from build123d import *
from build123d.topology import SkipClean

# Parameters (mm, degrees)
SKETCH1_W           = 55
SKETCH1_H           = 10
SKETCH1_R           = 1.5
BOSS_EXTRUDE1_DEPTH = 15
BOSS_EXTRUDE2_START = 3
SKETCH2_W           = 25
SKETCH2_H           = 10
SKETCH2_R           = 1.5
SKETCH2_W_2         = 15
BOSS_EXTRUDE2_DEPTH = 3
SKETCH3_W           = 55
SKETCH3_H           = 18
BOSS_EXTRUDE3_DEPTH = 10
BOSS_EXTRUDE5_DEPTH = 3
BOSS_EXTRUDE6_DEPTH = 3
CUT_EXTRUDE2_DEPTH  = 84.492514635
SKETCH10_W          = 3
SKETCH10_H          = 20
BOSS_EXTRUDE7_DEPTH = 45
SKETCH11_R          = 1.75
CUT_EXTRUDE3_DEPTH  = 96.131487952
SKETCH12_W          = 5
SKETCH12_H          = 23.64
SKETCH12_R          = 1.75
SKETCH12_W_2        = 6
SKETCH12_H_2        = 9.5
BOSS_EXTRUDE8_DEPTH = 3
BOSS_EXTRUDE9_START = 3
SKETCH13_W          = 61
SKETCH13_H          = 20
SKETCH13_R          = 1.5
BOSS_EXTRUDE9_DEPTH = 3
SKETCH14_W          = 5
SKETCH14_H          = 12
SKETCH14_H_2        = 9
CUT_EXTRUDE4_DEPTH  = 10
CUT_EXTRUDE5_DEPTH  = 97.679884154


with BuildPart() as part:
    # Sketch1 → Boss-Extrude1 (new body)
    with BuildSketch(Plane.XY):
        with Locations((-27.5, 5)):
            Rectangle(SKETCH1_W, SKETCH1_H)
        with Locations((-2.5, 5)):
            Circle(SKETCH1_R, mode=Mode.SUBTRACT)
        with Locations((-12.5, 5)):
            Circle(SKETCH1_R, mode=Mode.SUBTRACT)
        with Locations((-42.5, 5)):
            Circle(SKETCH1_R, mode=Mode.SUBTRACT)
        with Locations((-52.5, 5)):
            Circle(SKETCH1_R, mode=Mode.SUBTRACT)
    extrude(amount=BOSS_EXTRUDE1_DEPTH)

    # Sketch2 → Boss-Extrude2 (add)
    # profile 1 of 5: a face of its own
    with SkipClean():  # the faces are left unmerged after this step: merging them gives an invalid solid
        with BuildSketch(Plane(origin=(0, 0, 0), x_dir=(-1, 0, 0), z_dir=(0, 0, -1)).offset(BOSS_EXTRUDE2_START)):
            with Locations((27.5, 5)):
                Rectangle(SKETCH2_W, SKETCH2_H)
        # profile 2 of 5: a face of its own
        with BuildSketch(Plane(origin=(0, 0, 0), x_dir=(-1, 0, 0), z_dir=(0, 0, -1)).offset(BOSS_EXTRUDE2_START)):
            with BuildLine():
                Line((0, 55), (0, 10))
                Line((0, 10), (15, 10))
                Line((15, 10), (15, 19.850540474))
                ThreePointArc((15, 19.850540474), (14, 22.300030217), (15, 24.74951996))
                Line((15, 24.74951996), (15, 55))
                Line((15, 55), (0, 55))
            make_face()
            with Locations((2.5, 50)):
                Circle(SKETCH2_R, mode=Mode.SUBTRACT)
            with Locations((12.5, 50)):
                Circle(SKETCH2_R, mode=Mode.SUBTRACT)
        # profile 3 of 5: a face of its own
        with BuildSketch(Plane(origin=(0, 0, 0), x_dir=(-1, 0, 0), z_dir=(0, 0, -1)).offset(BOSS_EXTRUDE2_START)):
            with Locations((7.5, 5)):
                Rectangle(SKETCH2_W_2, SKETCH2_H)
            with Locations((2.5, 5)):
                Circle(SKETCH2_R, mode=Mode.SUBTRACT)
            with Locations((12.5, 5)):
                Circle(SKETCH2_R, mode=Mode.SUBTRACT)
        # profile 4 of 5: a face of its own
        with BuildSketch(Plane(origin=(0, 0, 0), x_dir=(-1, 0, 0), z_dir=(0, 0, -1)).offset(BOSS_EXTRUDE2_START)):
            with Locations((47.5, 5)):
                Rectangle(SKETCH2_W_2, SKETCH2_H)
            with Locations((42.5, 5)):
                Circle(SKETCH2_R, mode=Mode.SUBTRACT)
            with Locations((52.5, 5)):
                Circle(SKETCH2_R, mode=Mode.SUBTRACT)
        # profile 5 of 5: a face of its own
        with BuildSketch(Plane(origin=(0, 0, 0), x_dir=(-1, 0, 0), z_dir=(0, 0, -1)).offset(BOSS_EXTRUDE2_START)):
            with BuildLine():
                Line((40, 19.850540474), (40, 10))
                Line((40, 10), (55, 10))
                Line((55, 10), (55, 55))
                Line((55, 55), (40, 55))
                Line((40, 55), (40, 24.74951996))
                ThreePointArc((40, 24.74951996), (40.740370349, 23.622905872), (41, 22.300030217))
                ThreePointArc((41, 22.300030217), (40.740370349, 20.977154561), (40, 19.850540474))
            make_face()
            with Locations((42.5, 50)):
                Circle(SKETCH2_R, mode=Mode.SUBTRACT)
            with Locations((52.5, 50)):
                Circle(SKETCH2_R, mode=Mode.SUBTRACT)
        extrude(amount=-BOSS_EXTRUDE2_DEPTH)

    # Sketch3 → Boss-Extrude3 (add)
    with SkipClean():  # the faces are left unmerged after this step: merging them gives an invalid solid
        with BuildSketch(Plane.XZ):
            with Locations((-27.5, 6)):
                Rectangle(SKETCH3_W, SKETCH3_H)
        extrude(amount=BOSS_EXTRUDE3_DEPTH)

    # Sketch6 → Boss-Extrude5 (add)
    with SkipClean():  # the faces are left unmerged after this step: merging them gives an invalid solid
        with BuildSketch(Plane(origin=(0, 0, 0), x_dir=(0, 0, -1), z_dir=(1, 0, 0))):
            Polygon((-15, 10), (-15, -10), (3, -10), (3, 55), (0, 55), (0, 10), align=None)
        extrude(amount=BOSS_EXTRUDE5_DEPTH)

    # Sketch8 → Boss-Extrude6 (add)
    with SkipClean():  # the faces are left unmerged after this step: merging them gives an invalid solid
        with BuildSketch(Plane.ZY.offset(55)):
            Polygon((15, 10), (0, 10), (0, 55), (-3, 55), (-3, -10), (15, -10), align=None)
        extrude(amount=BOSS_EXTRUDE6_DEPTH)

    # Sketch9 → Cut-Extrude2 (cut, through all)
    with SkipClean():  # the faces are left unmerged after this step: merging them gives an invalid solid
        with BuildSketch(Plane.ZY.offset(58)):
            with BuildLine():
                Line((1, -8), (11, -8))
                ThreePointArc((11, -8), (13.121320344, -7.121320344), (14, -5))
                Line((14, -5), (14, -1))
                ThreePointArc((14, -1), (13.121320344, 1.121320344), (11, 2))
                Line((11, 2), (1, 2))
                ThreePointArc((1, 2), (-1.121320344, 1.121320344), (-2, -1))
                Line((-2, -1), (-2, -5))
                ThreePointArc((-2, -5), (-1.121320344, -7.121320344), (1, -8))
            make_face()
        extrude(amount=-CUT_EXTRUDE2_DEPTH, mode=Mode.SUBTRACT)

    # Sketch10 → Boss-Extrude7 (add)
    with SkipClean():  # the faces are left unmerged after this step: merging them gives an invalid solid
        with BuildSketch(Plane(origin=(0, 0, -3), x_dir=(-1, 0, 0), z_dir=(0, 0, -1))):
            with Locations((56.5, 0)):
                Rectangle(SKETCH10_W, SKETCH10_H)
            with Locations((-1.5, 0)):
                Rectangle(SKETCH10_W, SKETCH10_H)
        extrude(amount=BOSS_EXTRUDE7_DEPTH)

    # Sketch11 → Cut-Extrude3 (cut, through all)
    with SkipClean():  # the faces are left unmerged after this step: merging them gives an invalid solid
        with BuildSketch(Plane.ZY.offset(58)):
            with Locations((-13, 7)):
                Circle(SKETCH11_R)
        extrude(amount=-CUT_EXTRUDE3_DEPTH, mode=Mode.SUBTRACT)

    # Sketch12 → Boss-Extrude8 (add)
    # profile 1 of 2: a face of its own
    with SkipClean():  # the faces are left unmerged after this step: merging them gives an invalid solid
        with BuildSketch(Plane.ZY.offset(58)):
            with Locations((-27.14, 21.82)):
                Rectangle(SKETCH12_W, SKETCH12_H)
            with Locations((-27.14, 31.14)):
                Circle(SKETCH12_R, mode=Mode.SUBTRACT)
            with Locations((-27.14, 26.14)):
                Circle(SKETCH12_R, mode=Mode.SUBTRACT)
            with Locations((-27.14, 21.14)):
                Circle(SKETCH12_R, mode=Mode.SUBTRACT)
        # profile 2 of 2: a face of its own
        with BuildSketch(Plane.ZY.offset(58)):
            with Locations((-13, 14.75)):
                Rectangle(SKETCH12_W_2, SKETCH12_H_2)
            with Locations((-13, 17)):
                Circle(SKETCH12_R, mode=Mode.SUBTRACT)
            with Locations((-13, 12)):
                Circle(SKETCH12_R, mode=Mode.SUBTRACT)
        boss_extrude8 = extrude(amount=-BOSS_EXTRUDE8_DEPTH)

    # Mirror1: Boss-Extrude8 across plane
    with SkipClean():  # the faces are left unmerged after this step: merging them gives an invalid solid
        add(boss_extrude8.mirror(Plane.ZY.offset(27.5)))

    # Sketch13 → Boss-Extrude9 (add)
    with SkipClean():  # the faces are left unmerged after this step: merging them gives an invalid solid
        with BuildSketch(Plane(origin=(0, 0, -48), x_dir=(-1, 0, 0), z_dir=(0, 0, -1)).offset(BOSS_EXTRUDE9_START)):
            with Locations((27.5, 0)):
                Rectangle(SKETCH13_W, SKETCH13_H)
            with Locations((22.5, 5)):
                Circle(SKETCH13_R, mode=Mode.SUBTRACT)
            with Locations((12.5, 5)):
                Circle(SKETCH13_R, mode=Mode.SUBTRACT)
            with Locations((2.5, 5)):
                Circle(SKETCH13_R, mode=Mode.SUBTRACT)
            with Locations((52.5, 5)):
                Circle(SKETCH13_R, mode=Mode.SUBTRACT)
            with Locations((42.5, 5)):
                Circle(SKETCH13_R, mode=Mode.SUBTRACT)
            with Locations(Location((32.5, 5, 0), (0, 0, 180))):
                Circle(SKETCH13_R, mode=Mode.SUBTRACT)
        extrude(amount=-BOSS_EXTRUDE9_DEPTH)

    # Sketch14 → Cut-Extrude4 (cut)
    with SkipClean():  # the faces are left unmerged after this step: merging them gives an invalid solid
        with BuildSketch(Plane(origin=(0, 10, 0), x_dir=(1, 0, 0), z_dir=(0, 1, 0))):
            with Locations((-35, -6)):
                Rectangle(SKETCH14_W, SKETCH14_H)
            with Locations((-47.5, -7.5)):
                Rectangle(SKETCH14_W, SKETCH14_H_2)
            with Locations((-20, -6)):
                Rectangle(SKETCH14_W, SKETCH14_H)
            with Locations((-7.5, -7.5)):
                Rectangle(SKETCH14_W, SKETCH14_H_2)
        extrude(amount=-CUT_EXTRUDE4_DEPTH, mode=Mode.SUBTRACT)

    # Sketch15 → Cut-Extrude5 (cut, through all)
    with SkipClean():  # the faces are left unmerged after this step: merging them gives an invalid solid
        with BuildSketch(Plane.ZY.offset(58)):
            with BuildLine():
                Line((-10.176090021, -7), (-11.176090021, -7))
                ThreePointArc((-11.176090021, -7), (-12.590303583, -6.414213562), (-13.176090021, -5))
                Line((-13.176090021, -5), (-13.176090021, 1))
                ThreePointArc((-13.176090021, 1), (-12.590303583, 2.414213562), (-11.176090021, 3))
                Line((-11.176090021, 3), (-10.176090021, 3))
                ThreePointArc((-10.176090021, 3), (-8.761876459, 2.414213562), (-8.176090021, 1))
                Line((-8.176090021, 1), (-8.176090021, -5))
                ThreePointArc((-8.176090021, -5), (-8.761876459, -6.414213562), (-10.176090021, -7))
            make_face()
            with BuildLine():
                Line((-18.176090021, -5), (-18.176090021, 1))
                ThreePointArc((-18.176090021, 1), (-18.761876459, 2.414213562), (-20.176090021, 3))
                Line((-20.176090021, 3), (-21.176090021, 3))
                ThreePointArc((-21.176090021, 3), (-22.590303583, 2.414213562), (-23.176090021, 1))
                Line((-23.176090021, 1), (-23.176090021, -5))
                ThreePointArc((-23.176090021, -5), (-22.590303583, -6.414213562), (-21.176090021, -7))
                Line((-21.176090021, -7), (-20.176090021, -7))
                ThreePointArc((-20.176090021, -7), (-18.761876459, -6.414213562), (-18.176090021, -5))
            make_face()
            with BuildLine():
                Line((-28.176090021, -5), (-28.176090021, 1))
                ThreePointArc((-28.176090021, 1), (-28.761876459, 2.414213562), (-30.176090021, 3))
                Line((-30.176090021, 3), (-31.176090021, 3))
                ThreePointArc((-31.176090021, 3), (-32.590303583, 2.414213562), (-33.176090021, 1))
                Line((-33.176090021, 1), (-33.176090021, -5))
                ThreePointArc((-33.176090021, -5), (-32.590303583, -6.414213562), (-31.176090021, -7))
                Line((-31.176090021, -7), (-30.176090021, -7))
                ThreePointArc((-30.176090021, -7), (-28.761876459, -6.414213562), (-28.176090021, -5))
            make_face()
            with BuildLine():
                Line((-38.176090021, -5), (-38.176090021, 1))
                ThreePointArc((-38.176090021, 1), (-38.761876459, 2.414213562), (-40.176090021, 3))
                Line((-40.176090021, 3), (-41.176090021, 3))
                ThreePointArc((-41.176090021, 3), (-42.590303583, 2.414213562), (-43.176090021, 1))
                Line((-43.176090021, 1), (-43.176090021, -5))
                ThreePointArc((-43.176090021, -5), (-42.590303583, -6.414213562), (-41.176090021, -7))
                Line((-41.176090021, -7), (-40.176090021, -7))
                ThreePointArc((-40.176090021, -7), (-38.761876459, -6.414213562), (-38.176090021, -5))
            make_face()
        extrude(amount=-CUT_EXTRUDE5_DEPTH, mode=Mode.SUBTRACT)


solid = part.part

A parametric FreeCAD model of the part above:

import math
import FreeCAD as App
import Part
import Sketcher

V = App.Vector

doc = App.newDocument("Part")
body = doc.addObject("PartDesign::Body", "Body")

# Sketch on XY plane
sketch1 = doc.addObject("Sketcher::SketchObject", "Sketch")
body.addObject(sketch1)
sketch1.AttachmentSupport = (doc.XY_Plane, [""])
sketch1.MapMode = "FlatFace"
sketch1.addGeometry(Part.LineSegment(V(-55, 10, 0), V(-55, 0, 0)), False)
sketch1.addGeometry(Part.LineSegment(V(-55, 0, 0), V(0, 0, 0)), False)
sketch1.addGeometry(Part.LineSegment(V(0, 0, 0), V(0, 10, 0)), False)
sketch1.addGeometry(Part.LineSegment(V(0, 10, 0), V(-55, 10, 0)), False)
sketch1.addGeometry(Part.Circle(V(-52.5, 5, 0), V(0, 0, 1), 1.5), False)
sketch1.addGeometry(Part.Circle(V(-42.5, 5, 0), V(0, 0, 1), 1.5), False)
sketch1.addGeometry(Part.Circle(V(-12.5, 5, 0), V(0, 0, 1), 1.5), False)
sketch1.addGeometry(Part.Circle(V(-2.5, 5, 0), V(0, 0, 1), 1.5), False)
sketch1.addConstraint(Sketcher.Constraint("Coincident", 0, 2, 1, 1))
sketch1.addConstraint(Sketcher.Constraint("Coincident", 1, 2, 2, 1))
sketch1.addConstraint(Sketcher.Constraint("Coincident", 2, 2, 3, 1))
sketch1.addConstraint(Sketcher.Constraint("Coincident", 3, 2, 0, 1))
sketch1.addConstraint(Sketcher.Constraint("Vertical", 0))
sketch1.addConstraint(Sketcher.Constraint("Horizontal", 1))
sketch1.addConstraint(Sketcher.Constraint("Vertical", 2))
sketch1.addConstraint(Sketcher.Constraint("Horizontal", 3))
sketch1.addConstraint(Sketcher.Constraint("Coincident", 1, 2, -1, 1))
sketch1.addConstraint(Sketcher.Constraint("Equal", 4, 5))
sketch1.addConstraint(Sketcher.Constraint("Equal", 5, 6))
sketch1.addConstraint(Sketcher.Constraint("Equal", 6, 7))
sketch1.addConstraint(Sketcher.Constraint("Horizontal", 4, 3, 5, 3))
sketch1.addConstraint(Sketcher.Constraint("Horizontal", 5, 3, 6, 3))
sketch1.addConstraint(Sketcher.Constraint("Horizontal", 6, 3, 7, 3))
sketch1.addConstraint(Sketcher.Constraint("Diameter", 4, 3.0))
sketch1.addConstraint(Sketcher.Constraint("DistanceX", 1, 1, 1, 2, 55.0))
sketch1.addConstraint(Sketcher.Constraint("DistanceY", 0, 2, 0, 1, 10.0))
sketch1.addConstraint(Sketcher.Constraint("DistanceY", -1, 1, 4, 3, 5.0))
sketch1.addConstraint(Sketcher.Constraint("DistanceX", 4, 3, 5, 3, 10.0))
sketch1.addConstraint(Sketcher.Constraint("DistanceX", 5, 3, 6, 3, 30.0))
sketch1.addConstraint(Sketcher.Constraint("DistanceX", 6, 3, 7, 3, 10.0))
sketch1.addConstraint(Sketcher.Constraint("DistanceX", 4, 3, -1, 1, 52.5))
pad1 = doc.addObject("PartDesign::Pad", "Pad")
body.addObject(pad1)
pad1.Profile = sketch1
pad1.Length = 15

# Sketch on XY plane
sketch2 = doc.addObject("Sketcher::SketchObject", "Sketch001")
body.addObject(sketch2)
sketch2.AttachmentSupport = (doc.XY_Plane, [""])
sketch2.MapMode = "FlatFace"
sketch2.AttachmentOffset = App.Placement(V(0, 0, -3), App.Rotation())
sketch2.addGeometry(Part.LineSegment(V(-55, 0, 0), V(-55, 55, 0)), False)
sketch2.addGeometry(Part.LineSegment(V(-55, 55, 0), V(-40, 55, 0)), False)
sketch2.addGeometry(Part.LineSegment(V(-40, 55, 0), V(-40, 24.7, 0)), False)
sketch2.addGeometry(Part.ArcOfCircle(Part.Circle(V(-37.5, 22.3, 0), V(0, 0, 1), 3.5), math.radians(136), math.radians(180)), False)
sketch2.addGeometry(Part.ArcOfCircle(Part.Circle(V(-37.5, 22.3, 0), V(0, 0, 1), 3.5), math.radians(180), math.radians(224)), False)
sketch2.addGeometry(Part.LineSegment(V(-40, 19.9, 0), V(-40, 10, 0)), False)
sketch2.addGeometry(Part.LineSegment(V(-40, 10, 0), V(-15, 10, 0)), False)
sketch2.addGeometry(Part.LineSegment(V(-15, 10, 0), V(-15, 19.9, 0)), False)
sketch2.addGeometry(Part.ArcOfCircle(Part.Circle(V(-17.5, 22.3, 0), V(0, 0, 1), 3.5), math.radians(-44), math.radians(44)), False)
sketch2.addGeometry(Part.LineSegment(V(-15, 24.7, 0), V(-15, 55, 0)), False)
sketch2.addGeometry(Part.LineSegment(V(-15, 55, 0), V(0, 55, 0)), False)
sketch2.addGeometry(Part.LineSegment(V(0, 55, 0), V(0, 0, 0)), False)
sketch2.addGeometry(Part.LineSegment(V(0, 0, 0), V(-55, 0, 0)), False)
sketch2.addGeometry(Part.Circle(V(-12.5, 5, 0), V(0, 0, 1), 1.5), False)
sketch2.addGeometry(Part.Circle(V(-2.5, 5, 0), V(0, 0, 1), 1.5), False)
sketch2.addGeometry(Part.Circle(V(-52.5, 5, 0), V(0, 0, 1), 1.5), False)
sketch2.addGeometry(Part.Circle(V(-42.5, 5, 0), V(0, 0, 1), 1.5), False)
sketch2.addGeometry(Part.Circle(V(-12.5, 50, 0), V(0, 0, 1), 1.5), False)
sketch2.addGeometry(Part.Circle(V(-2.5, 50, 0), V(0, 0, 1), 1.5), False)
sketch2.addGeometry(Part.Circle(V(-52.5, 50, 0), V(0, 0, 1), 1.5), False)
sketch2.addGeometry(Part.Circle(V(-42.5, 50, 0), V(0, 0, 1), 1.5), False)
sketch2.addConstraint(Sketcher.Constraint("Coincident", 0, 2, 1, 1))
sketch2.addConstraint(Sketcher.Constraint("Coincident", 1, 2, 2, 1))
sketch2.addConstraint(Sketcher.Constraint("Coincident", 2, 2, 3, 1))
sketch2.addConstraint(Sketcher.Constraint("Tangent", 3, 2, 4, 1))
sketch2.addConstraint(Sketcher.Constraint("Coincident", 4, 2, 5, 1))
sketch2.addConstraint(Sketcher.Constraint("Coincident", 5, 2, 6, 1))
sketch2.addConstraint(Sketcher.Constraint("Coincident", 6, 2, 7, 1))
sketch2.addConstraint(Sketcher.Constraint("Coincident", 7, 2, 8, 1))
sketch2.addConstraint(Sketcher.Constraint("Coincident", 8, 2, 9, 1))
sketch2.addConstraint(Sketcher.Constraint("Coincident", 9, 2, 10, 1))
sketch2.addConstraint(Sketcher.Constraint("Coincident", 10, 2, 11, 1))
sketch2.addConstraint(Sketcher.Constraint("Coincident", 11, 2, 12, 1))
sketch2.addConstraint(Sketcher.Constraint("Coincident", 12, 2, 0, 1))
sketch2.addConstraint(Sketcher.Constraint("Vertical", 0))
sketch2.addConstraint(Sketcher.Constraint("Horizontal", 1))
sketch2.addConstraint(Sketcher.Constraint("Vertical", 2))
sketch2.addConstraint(Sketcher.Constraint("Vertical", 5))
sketch2.addConstraint(Sketcher.Constraint("Horizontal", 6))
sketch2.addConstraint(Sketcher.Constraint("Vertical", 7))
sketch2.addConstraint(Sketcher.Constraint("Vertical", 9))
sketch2.addConstraint(Sketcher.Constraint("Horizontal", 10))
sketch2.addConstraint(Sketcher.Constraint("Vertical", 11))
sketch2.addConstraint(Sketcher.Constraint("Horizontal", 12))
sketch2.addConstraint(Sketcher.Constraint("Coincident", 11, 2, -1, 1))
sketch2.addConstraint(Sketcher.Constraint("Equal", 3, 4))
sketch2.addConstraint(Sketcher.Constraint("Equal", 4, 8))
sketch2.addConstraint(Sketcher.Constraint("Equal", 13, 14))
sketch2.addConstraint(Sketcher.Constraint("Equal", 14, 15))
sketch2.addConstraint(Sketcher.Constraint("Equal", 15, 16))
sketch2.addConstraint(Sketcher.Constraint("Equal", 16, 17))
sketch2.addConstraint(Sketcher.Constraint("Equal", 17, 18))
sketch2.addConstraint(Sketcher.Constraint("Equal", 18, 19))
sketch2.addConstraint(Sketcher.Constraint("Equal", 19, 20))
sketch2.addConstraint(Sketcher.Constraint("Horizontal", 4, 3, 8, 3))
sketch2.addConstraint(Sketcher.Constraint("Horizontal", 13, 3, 14, 3))
sketch2.addConstraint(Sketcher.Constraint("Horizontal", 14, 3, 15, 3))
sketch2.addConstraint(Sketcher.Constraint("Horizontal", 15, 3, 16, 3))
sketch2.addConstraint(Sketcher.Constraint("Horizontal", 17, 3, 18, 3))
sketch2.addConstraint(Sketcher.Constraint("Horizontal", 18, 3, 19, 3))
sketch2.addConstraint(Sketcher.Constraint("Horizontal", 19, 3, 20, 3))
sketch2.addConstraint(Sketcher.Constraint("Horizontal", 8, 3, 3, 2))
sketch2.addConstraint(Sketcher.Constraint("Horizontal", 4, 2, 7, 2))
sketch2.addConstraint(Sketcher.Constraint("Horizontal", 2, 2, 8, 2))
sketch2.addConstraint(Sketcher.Constraint("Horizontal", 1, 2, 9, 2))
sketch2.addConstraint(Sketcher.Constraint("Vertical", 13, 3, 17, 3))
sketch2.addConstraint(Sketcher.Constraint("Vertical", 14, 3, 18, 3))
sketch2.addConstraint(Sketcher.Constraint("Vertical", 15, 3, 19, 3))
sketch2.addConstraint(Sketcher.Constraint("Vertical", 16, 3, 20, 3))
sketch2.addConstraint(Sketcher.Constraint("Vertical", 2, 2, 4, 2))
sketch2.addConstraint(Sketcher.Constraint("Equal", 1, 10))
sketch2.addConstraint(Sketcher.Constraint("Equal", 12, 0))
sketch2.addConstraint(Sketcher.Constraint("Diameter", 13, 3.0))
sketch2.addConstraint(Sketcher.Constraint("Radius", 3, 3.5))
sketch2.addConstraint(Sketcher.Constraint("DistanceX", 1, 1, 1, 2, 15.0))
sketch2.addConstraint(Sketcher.Constraint("DistanceX", 6, 1, 6, 2, 25.0))
sketch2.addConstraint(Sketcher.Constraint("DistanceY", -1, 1, 13, 3, 5.0))
sketch2.addConstraint(Sketcher.Constraint("DistanceY", -1, 1, 17, 3, 50.0))
sketch2.addConstraint(Sketcher.Constraint("DistanceX", 3, 2, -1, 1, 41.0))
sketch2.addConstraint(Sketcher.Constraint("DistanceY", -1, 1, 5, 2, 10.0))
sketch2.addConstraint(Sketcher.Constraint("DistanceX", 8, 3, 13, 3, 5.0))
sketch2.addConstraint(Sketcher.Constraint("DistanceX", 13, 3, 14, 3, 10.0))
sketch2.addConstraint(Sketcher.Constraint("DistanceX", 15, 3, 4, 3, 15.0))
sketch2.addConstraint(Sketcher.Constraint("DistanceX", 15, 3, 16, 3, 10.0))
sketch2.addConstraint(Sketcher.Constraint("DistanceY", 2, 2, 2, 1, 30.25048))
pad2 = doc.addObject("PartDesign::Pad", "Pad001")
body.addObject(pad2)
pad2.Profile = sketch2
pad2.Length = 3

# Sketch on XZ plane
sketch3 = doc.addObject("Sketcher::SketchObject", "Sketch002")
body.addObject(sketch3)
sketch3.AttachmentSupport = (doc.XZ_Plane, [""])
sketch3.MapMode = "FlatFace"
sketch3.addGeometry(Part.LineSegment(V(-55, 15, 0), V(-55, -3, 0)), False)
sketch3.addGeometry(Part.LineSegment(V(-55, -3, 0), V(0, -3, 0)), False)
sketch3.addGeometry(Part.LineSegment(V(0, -3, 0), V(0, 15, 0)), False)
sketch3.addGeometry(Part.LineSegment(V(0, 15, 0), V(-55, 15, 0)), False)
sketch3.addConstraint(Sketcher.Constraint("Coincident", 0, 2, 1, 1))
sketch3.addConstraint(Sketcher.Constraint("Coincident", 1, 2, 2, 1))
sketch3.addConstraint(Sketcher.Constraint("Coincident", 2, 2, 3, 1))
sketch3.addConstraint(Sketcher.Constraint("Coincident", 3, 2, 0, 1))
sketch3.addConstraint(Sketcher.Constraint("Vertical", 0))
sketch3.addConstraint(Sketcher.Constraint("Horizontal", 1))
sketch3.addConstraint(Sketcher.Constraint("Vertical", 2))
sketch3.addConstraint(Sketcher.Constraint("Horizontal", 3))
sketch3.addConstraint(Sketcher.Constraint("PointOnObject", 1, 2, -2))
sketch3.addConstraint(Sketcher.Constraint("DistanceX", 1, 1, 1, 2, 55.0))
sketch3.addConstraint(Sketcher.Constraint("DistanceY", 0, 2, 0, 1, 18.0))
sketch3.addConstraint(Sketcher.Constraint("DistanceY", 0, 2, -1, 1, 3.0))
pad3 = doc.addObject("PartDesign::Pad", "Pad002")
body.addObject(pad3)
pad3.Profile = sketch3
pad3.Length = 10

# Sketch on YZ plane
sketch4 = doc.addObject("Sketcher::SketchObject", "Sketch003")
body.addObject(sketch4)
sketch4.AttachmentSupport = (doc.YZ_Plane, [""])
sketch4.MapMode = "FlatFace"
sketch4.addGeometry(Part.LineSegment(V(10, 15, 0), V(-10, 15, 0)), False)
sketch4.addGeometry(Part.LineSegment(V(-10, 15, 0), V(-10, -3, 0)), False)
sketch4.addGeometry(Part.LineSegment(V(-10, -3, 0), V(55, -3, 0)), False)
sketch4.addGeometry(Part.LineSegment(V(55, -3, 0), V(55, 0, 0)), False)
sketch4.addGeometry(Part.LineSegment(V(55, 0, 0), V(10, 0, 0)), False)
sketch4.addGeometry(Part.LineSegment(V(10, 0, 0), V(10, 15, 0)), False)
sketch4.addConstraint(Sketcher.Constraint("Coincident", 0, 2, 1, 1))
sketch4.addConstraint(Sketcher.Constraint("Coincident", 1, 2, 2, 1))
sketch4.addConstraint(Sketcher.Constraint("Coincident", 2, 2, 3, 1))
sketch4.addConstraint(Sketcher.Constraint("Coincident", 3, 2, 4, 1))
sketch4.addConstraint(Sketcher.Constraint("Coincident", 4, 2, 5, 1))
sketch4.addConstraint(Sketcher.Constraint("Coincident", 5, 2, 0, 1))
sketch4.addConstraint(Sketcher.Constraint("Horizontal", 0))
sketch4.addConstraint(Sketcher.Constraint("Vertical", 1))
sketch4.addConstraint(Sketcher.Constraint("Horizontal", 2))
sketch4.addConstraint(Sketcher.Constraint("Vertical", 3))
sketch4.addConstraint(Sketcher.Constraint("Horizontal", 4))
sketch4.addConstraint(Sketcher.Constraint("Vertical", 5))
sketch4.addConstraint(Sketcher.Constraint("PointOnObject", 3, 2, -1))
sketch4.addConstraint(Sketcher.Constraint("DistanceX", 0, 2, 0, 1, 20.0))
sketch4.addConstraint(Sketcher.Constraint("DistanceX", 2, 1, 2, 2, 65.0))
sketch4.addConstraint(Sketcher.Constraint("DistanceY", 1, 2, 1, 1, 18.0))
sketch4.addConstraint(Sketcher.Constraint("DistanceY", 3, 1, 3, 2, 3.0))
sketch4.addConstraint(Sketcher.Constraint("DistanceX", 0, 2, -1, 1, 10.0))
pad4 = doc.addObject("PartDesign::Pad", "Pad003")
body.addObject(pad4)
pad4.Profile = sketch4
pad4.Length = 3

# Sketch on YZ plane
sketch5 = doc.addObject("Sketcher::SketchObject", "Sketch004")
body.addObject(sketch5)
sketch5.AttachmentSupport = (doc.YZ_Plane, [""])
sketch5.MapMode = "FlatFace"
sketch5.AttachmentOffset = App.Placement(V(0, 0, -55), App.Rotation())
sketch5.addGeometry(Part.LineSegment(V(10, 15, 0), V(10, 0, 0)), False)
sketch5.addGeometry(Part.LineSegment(V(10, 0, 0), V(55, 0, 0)), False)
sketch5.addGeometry(Part.LineSegment(V(55, 0, 0), V(55, -3, 0)), False)
sketch5.addGeometry(Part.LineSegment(V(55, -3, 0), V(-10, -3, 0)), False)
sketch5.addGeometry(Part.LineSegment(V(-10, -3, 0), V(-10, 15, 0)), False)
sketch5.addGeometry(Part.LineSegment(V(-10, 15, 0), V(10, 15, 0)), False)
sketch5.addConstraint(Sketcher.Constraint("Coincident", 0, 2, 1, 1))
sketch5.addConstraint(Sketcher.Constraint("Coincident", 1, 2, 2, 1))
sketch5.addConstraint(Sketcher.Constraint("Coincident", 2, 2, 3, 1))
sketch5.addConstraint(Sketcher.Constraint("Coincident", 3, 2, 4, 1))
sketch5.addConstraint(Sketcher.Constraint("Coincident", 4, 2, 5, 1))
sketch5.addConstraint(Sketcher.Constraint("Coincident", 5, 2, 0, 1))
sketch5.addConstraint(Sketcher.Constraint("Vertical", 0))
sketch5.addConstraint(Sketcher.Constraint("Horizontal", 1))
sketch5.addConstraint(Sketcher.Constraint("Vertical", 2))
sketch5.addConstraint(Sketcher.Constraint("Horizontal", 3))
sketch5.addConstraint(Sketcher.Constraint("Vertical", 4))
sketch5.addConstraint(Sketcher.Constraint("Horizontal", 5))
sketch5.addConstraint(Sketcher.Constraint("PointOnObject", 0, 2, -1))
sketch5.addConstraint(Sketcher.Constraint("DistanceX", 1, 1, 1, 2, 45.0))
sketch5.addConstraint(Sketcher.Constraint("DistanceX", 3, 2, 3, 1, 65.0))
sketch5.addConstraint(Sketcher.Constraint("DistanceY", 0, 2, 0, 1, 15.0))
sketch5.addConstraint(Sketcher.Constraint("DistanceY", 2, 2, 2, 1, 3.0))
sketch5.addConstraint(Sketcher.Constraint("DistanceX", -1, 1, 0, 2, 10.0))
pad5 = doc.addObject("PartDesign::Pad", "Pad004")
body.addObject(pad5)
pad5.Profile = sketch5
pad5.Length = 3
pad5.Reversed = True

# Sketch on YZ plane
sketch6 = doc.addObject("Sketcher::SketchObject", "Sketch005")
body.addObject(sketch6)
sketch6.AttachmentSupport = (doc.YZ_Plane, [""])
sketch6.MapMode = "FlatFace"
sketch6.AttachmentOffset = App.Placement(V(0, 0, -58), App.Rotation())
sketch6.addGeometry(Part.LineSegment(V(-8, 1, 0), V(-8, 11, 0)), False)
sketch6.addGeometry(Part.ArcOfCircle(Part.Circle(V(-5, 11, 0), V(0, 0, 1), 3), math.radians(90), math.radians(180)), False)
sketch6.addGeometry(Part.LineSegment(V(-5, 14, 0), V(-1, 14, 0)), False)
sketch6.addGeometry(Part.ArcOfCircle(Part.Circle(V(-1, 11, 0), V(0, 0, 1), 3), math.radians(0), math.radians(90)), False)
sketch6.addGeometry(Part.LineSegment(V(2, 11, 0), V(2, 1, 0)), False)
sketch6.addGeometry(Part.ArcOfCircle(Part.Circle(V(-1, 1, 0), V(0, 0, 1), 3), math.radians(-90), math.radians(0)), False)
sketch6.addGeometry(Part.LineSegment(V(-1, -2, 0), V(-5, -2, 0)), False)
sketch6.addGeometry(Part.ArcOfCircle(Part.Circle(V(-5, 1, 0), V(0, 0, 1), 3), math.radians(180), math.radians(270)), False)
sketch6.addConstraint(Sketcher.Constraint("Tangent", 0, 2, 1, 2))
sketch6.addConstraint(Sketcher.Constraint("Tangent", 1, 1, 2, 1))
sketch6.addConstraint(Sketcher.Constraint("Tangent", 2, 2, 3, 2))
sketch6.addConstraint(Sketcher.Constraint("Tangent", 3, 1, 4, 1))
sketch6.addConstraint(Sketcher.Constraint("Tangent", 4, 2, 5, 2))
sketch6.addConstraint(Sketcher.Constraint("Tangent", 5, 1, 6, 1))
sketch6.addConstraint(Sketcher.Constraint("Tangent", 6, 2, 7, 2))
sketch6.addConstraint(Sketcher.Constraint("Tangent", 7, 1, 0, 1))
sketch6.addConstraint(Sketcher.Constraint("Vertical", 0))
sketch6.addConstraint(Sketcher.Constraint("Horizontal", 2))
sketch6.addConstraint(Sketcher.Constraint("Vertical", 4))
sketch6.addConstraint(Sketcher.Constraint("Horizontal", 6))
sketch6.addConstraint(Sketcher.Constraint("Equal", 1, 3))
sketch6.addConstraint(Sketcher.Constraint("Equal", 3, 5))
sketch6.addConstraint(Sketcher.Constraint("Equal", 5, 7))
sketch6.addConstraint(Sketcher.Constraint("Radius", 1, 3.0))
sketch6.addConstraint(Sketcher.Constraint("DistanceX", 2, 1, 2, 2, 4.0))
sketch6.addConstraint(Sketcher.Constraint("DistanceY", 0, 1, 0, 2, 10.0))
sketch6.addConstraint(Sketcher.Constraint("DistanceX", 1, 3, -1, 1, 5.0))
sketch6.addConstraint(Sketcher.Constraint("DistanceY", -1, 1, 1, 3, 11.0))
pocket1 = doc.addObject("PartDesign::Pocket", "Pocket")
body.addObject(pocket1)
pocket1.Profile = sketch6
pocket1.Type = "ThroughAll"
pocket1.Reversed = True

# Sketch on XY plane
sketch7 = doc.addObject("Sketcher::SketchObject", "Sketch006")
body.addObject(sketch7)
sketch7.AttachmentSupport = (doc.XY_Plane, [""])
sketch7.MapMode = "FlatFace"
sketch7.AttachmentOffset = App.Placement(V(0, 0, -3), App.Rotation())
sketch7.addGeometry(Part.LineSegment(V(-55, 10, 0), V(-55, -10, 0)), False)
sketch7.addGeometry(Part.LineSegment(V(-55, -10, 0), V(-58, -10, 0)), False)
sketch7.addGeometry(Part.LineSegment(V(-58, -10, 0), V(-58, 10, 0)), False)
sketch7.addGeometry(Part.LineSegment(V(-58, 10, 0), V(-55, 10, 0)), False)
sketch7.addGeometry(Part.LineSegment(V(3, 10, 0), V(3, -10, 0)), False)
sketch7.addGeometry(Part.LineSegment(V(3, -10, 0), V(0, -10, 0)), False)
sketch7.addGeometry(Part.LineSegment(V(0, -10, 0), V(0, 10, 0)), False)
sketch7.addGeometry(Part.LineSegment(V(0, 10, 0), V(3, 10, 0)), False)
sketch7.addConstraint(Sketcher.Constraint("Coincident", 0, 2, 1, 1))
sketch7.addConstraint(Sketcher.Constraint("Coincident", 1, 2, 2, 1))
sketch7.addConstraint(Sketcher.Constraint("Coincident", 2, 2, 3, 1))
sketch7.addConstraint(Sketcher.Constraint("Coincident", 3, 2, 0, 1))
sketch7.addConstraint(Sketcher.Constraint("Coincident", 4, 2, 5, 1))
sketch7.addConstraint(Sketcher.Constraint("Coincident", 5, 2, 6, 1))
sketch7.addConstraint(Sketcher.Constraint("Coincident", 6, 2, 7, 1))
sketch7.addConstraint(Sketcher.Constraint("Coincident", 7, 2, 4, 1))
sketch7.addConstraint(Sketcher.Constraint("Vertical", 0))
sketch7.addConstraint(Sketcher.Constraint("Horizontal", 1))
sketch7.addConstraint(Sketcher.Constraint("Vertical", 2))
sketch7.addConstraint(Sketcher.Constraint("Horizontal", 3))
sketch7.addConstraint(Sketcher.Constraint("Vertical", 4))
sketch7.addConstraint(Sketcher.Constraint("Horizontal", 5))
sketch7.addConstraint(Sketcher.Constraint("Vertical", 6))
sketch7.addConstraint(Sketcher.Constraint("Horizontal", 7))
sketch7.addConstraint(Sketcher.Constraint("Symmetric", 5, 2, 6, 2, -1, 1))
sketch7.addConstraint(Sketcher.Constraint("Horizontal", 1, 2, 4, 2))
sketch7.addConstraint(Sketcher.Constraint("Horizontal", 3, 2, 6, 2))
sketch7.addConstraint(Sketcher.Constraint("Equal", 3, 5))
sketch7.addConstraint(Sketcher.Constraint("DistanceX", 1, 2, 1, 1, 3.0))
sketch7.addConstraint(Sketcher.Constraint("DistanceY", 0, 2, 0, 1, 20.0))
sketch7.addConstraint(Sketcher.Constraint("DistanceX", 0, 2, -1, 1, 55.0))
pad6 = doc.addObject("PartDesign::Pad", "Pad005")
body.addObject(pad6)
pad6.Profile = sketch7
pad6.Length = 45
pad6.Reversed = True

# Sketch on YZ plane
sketch8 = doc.addObject("Sketcher::SketchObject", "Sketch007")
body.addObject(sketch8)
sketch8.AttachmentSupport = (doc.YZ_Plane, [""])
sketch8.MapMode = "FlatFace"
sketch8.AttachmentOffset = App.Placement(V(0, 0, -58), App.Rotation())
sketch8.addGeometry(Part.Circle(V(7, -13, 0), V(0, 0, 1), 1.8), False)
sketch8.addConstraint(Sketcher.Constraint("Diameter", 0, 3.5))
sketch8.addConstraint(Sketcher.Constraint("DistanceX", -1, 1, 0, 3, 7.0))
sketch8.addConstraint(Sketcher.Constraint("DistanceY", 0, 3, -1, 1, 13.0))
pocket2 = doc.addObject("PartDesign::Pocket", "Pocket001")
body.addObject(pocket2)
pocket2.Profile = sketch8
pocket2.Type = "ThroughAll"
pocket2.Reversed = True

# Sketch on YZ plane
sketch9 = doc.addObject("Sketcher::SketchObject", "Sketch008")
body.addObject(sketch9)
sketch9.AttachmentSupport = (doc.YZ_Plane, [""])
sketch9.MapMode = "FlatFace"
sketch9.AttachmentOffset = App.Placement(V(0, 0, -58), App.Rotation())
sketch9.addGeometry(Part.LineSegment(V(33.6, -29.6, 0), V(10, -29.6, 0)), False)
sketch9.addGeometry(Part.LineSegment(V(10, -29.6, 0), V(10, -24.6, 0)), False)
sketch9.addGeometry(Part.LineSegment(V(10, -24.6, 0), V(33.6, -24.6, 0)), False)
sketch9.addGeometry(Part.LineSegment(V(33.6, -24.6, 0), V(33.6, -29.6, 0)), False)
sketch9.addGeometry(Part.Circle(V(21.1, -27.1, 0), V(0, 0, 1), 1.8), False)
sketch9.addGeometry(Part.Circle(V(26.1, -27.1, 0), V(0, 0, 1), 1.8), False)
sketch9.addGeometry(Part.Circle(V(31.1, -27.1, 0), V(0, 0, 1), 1.8), False)
sketch9.addGeometry(Part.LineSegment(V(19.5, -16, 0), V(10, -16, 0)), False)
sketch9.addGeometry(Part.LineSegment(V(10, -16, 0), V(10, -10, 0)), False)
sketch9.addGeometry(Part.LineSegment(V(10, -10, 0), V(19.5, -10, 0)), False)
sketch9.addGeometry(Part.LineSegment(V(19.5, -10, 0), V(19.5, -16, 0)), False)
sketch9.addGeometry(Part.Circle(V(12, -13, 0), V(0, 0, 1), 1.8), False)
sketch9.addGeometry(Part.Circle(V(17, -13, 0), V(0, 0, 1), 1.8), False)
sketch9.addConstraint(Sketcher.Constraint("Coincident", 0, 2, 1, 1))
sketch9.addConstraint(Sketcher.Constraint("Coincident", 1, 2, 2, 1))
sketch9.addConstraint(Sketcher.Constraint("Coincident", 2, 2, 3, 1))
sketch9.addConstraint(Sketcher.Constraint("Coincident", 3, 2, 0, 1))
sketch9.addConstraint(Sketcher.Constraint("Coincident", 7, 2, 8, 1))
sketch9.addConstraint(Sketcher.Constraint("Coincident", 8, 2, 9, 1))
sketch9.addConstraint(Sketcher.Constraint("Coincident", 9, 2, 10, 1))
sketch9.addConstraint(Sketcher.Constraint("Coincident", 10, 2, 7, 1))
sketch9.addConstraint(Sketcher.Constraint("Horizontal", 0))
sketch9.addConstraint(Sketcher.Constraint("Vertical", 1))
sketch9.addConstraint(Sketcher.Constraint("Horizontal", 2))
sketch9.addConstraint(Sketcher.Constraint("Vertical", 3))
sketch9.addConstraint(Sketcher.Constraint("Horizontal", 7))
sketch9.addConstraint(Sketcher.Constraint("Vertical", 8))
sketch9.addConstraint(Sketcher.Constraint("Horizontal", 9))
sketch9.addConstraint(Sketcher.Constraint("Vertical", 10))
sketch9.addConstraint(Sketcher.Constraint("Equal", 4, 5))
sketch9.addConstraint(Sketcher.Constraint("Equal", 5, 6))
sketch9.addConstraint(Sketcher.Constraint("Equal", 6, 11))
sketch9.addConstraint(Sketcher.Constraint("Equal", 11, 12))
sketch9.addConstraint(Sketcher.Constraint("Horizontal", 4, 3, 5, 3))
sketch9.addConstraint(Sketcher.Constraint("Horizontal", 5, 3, 6, 3))
sketch9.addConstraint(Sketcher.Constraint("Horizontal", 11, 3, 12, 3))
sketch9.addConstraint(Sketcher.Constraint("Vertical", 1, 2, 7, 2))
sketch9.addConstraint(Sketcher.Constraint("Diameter", 4, 3.5))
sketch9.addConstraint(Sketcher.Constraint("DistanceY", 1, 1, 1, 2, 5.0))
sketch9.addConstraint(Sketcher.Constraint("DistanceY", 8, 1, 8, 2, 6.0))
sketch9.addConstraint(Sketcher.Constraint("DistanceX", 7, 2, 7, 1, 9.5))
sketch9.addConstraint(Sketcher.Constraint("DistanceX", -1, 1, 11, 3, 12.0))
sketch9.addConstraint(Sketcher.Constraint("DistanceY", 11, 3, -1, 1, 13.0))
sketch9.addConstraint(Sketcher.Constraint("DistanceX", -1, 1, 12, 3, 17.0))
sketch9.addConstraint(Sketcher.Constraint("DistanceX", -1, 1, 0, 2, 10.0))
sketch9.addConstraint(Sketcher.Constraint("DistanceY", 7, 2, -1, 1, 16.0))
sketch9.addConstraint(Sketcher.Constraint("DistanceX", 4, 3, 5, 3, 5.0))
sketch9.addConstraint(Sketcher.Constraint("DistanceX", 5, 3, 6, 3, 5.0))
sketch9.addConstraint(Sketcher.Constraint("DistanceX", 0, 2, 0, 1, 23.64))
sketch9.addConstraint(Sketcher.Constraint("DistanceY", 0, 2, 4, 3, 2.5))
sketch9.addConstraint(Sketcher.Constraint("DistanceX", 6, 3, 2, 2, 2.5))
sketch9.addConstraint(Sketcher.Constraint("DistanceY", 4, 3, -1, 1, 27.14))
pad7 = doc.addObject("PartDesign::Pad", "Pad006")
body.addObject(pad7)
pad7.Profile = sketch9
pad7.Length = 3
doc.recompute()

datumplane = doc.addObject("PartDesign::Plane", "DatumPlane")
body.addObject(datumplane)
datumplane.AttachmentSupport = (doc.YZ_Plane, [""])
datumplane.MapMode = "FlatFace"
datumplane.AttachmentOffset = App.Placement(V(0, 0, -27.5), App.Rotation())
mirrored = doc.addObject("PartDesign::Mirrored", "Mirrored")
body.addObject(mirrored)
mirrored.Originals = [pad7]
mirrored.MirrorPlane = (datumplane, [""])
body.Tip = mirrored

# Sketch on XY plane
sketch10 = doc.addObject("Sketcher::SketchObject", "Sketch009")
body.addObject(sketch10)
sketch10.AttachmentSupport = (doc.XY_Plane, [""])
sketch10.MapMode = "FlatFace"
sketch10.AttachmentOffset = App.Placement(V(0, 0, -51), App.Rotation())
sketch10.addGeometry(Part.LineSegment(V(3, 10, 0), V(3, -10, 0)), False)
sketch10.addGeometry(Part.LineSegment(V(3, -10, 0), V(-58, -10, 0)), False)
sketch10.addGeometry(Part.LineSegment(V(-58, -10, 0), V(-58, 10, 0)), False)
sketch10.addGeometry(Part.LineSegment(V(-58, 10, 0), V(3, 10, 0)), False)
sketch10.addGeometry(Part.Circle(V(-2.5, 5, 0), V(0, 0, 1), 1.5), False)
sketch10.addGeometry(Part.Circle(V(-12.5, 5, 0), V(0, 0, 1), 1.5), False)
sketch10.addGeometry(Part.Circle(V(-22.5, 5, 0), V(0, 0, 1), 1.5), False)
sketch10.addGeometry(Part.Circle(V(-32.5, 5, 0), V(0, 0, 1), 1.5), False)
sketch10.addGeometry(Part.Circle(V(-42.5, 5, 0), V(0, 0, 1), 1.5), False)
sketch10.addGeometry(Part.Circle(V(-52.5, 5, 0), V(0, 0, 1), 1.5), False)
sketch10.addConstraint(Sketcher.Constraint("Coincident", 0, 2, 1, 1))
sketch10.addConstraint(Sketcher.Constraint("Coincident", 1, 2, 2, 1))
sketch10.addConstraint(Sketcher.Constraint("Coincident", 2, 2, 3, 1))
sketch10.addConstraint(Sketcher.Constraint("Coincident", 3, 2, 0, 1))
sketch10.addConstraint(Sketcher.Constraint("Vertical", 0))
sketch10.addConstraint(Sketcher.Constraint("Horizontal", 1))
sketch10.addConstraint(Sketcher.Constraint("Vertical", 2))
sketch10.addConstraint(Sketcher.Constraint("Horizontal", 3))
sketch10.addConstraint(Sketcher.Constraint("Equal", 4, 5))
sketch10.addConstraint(Sketcher.Constraint("Equal", 5, 6))
sketch10.addConstraint(Sketcher.Constraint("Equal", 6, 7))
sketch10.addConstraint(Sketcher.Constraint("Equal", 7, 8))
sketch10.addConstraint(Sketcher.Constraint("Equal", 8, 9))
sketch10.addConstraint(Sketcher.Constraint("Horizontal", 4, 3, 5, 3))
sketch10.addConstraint(Sketcher.Constraint("Horizontal", 5, 3, 6, 3))
sketch10.addConstraint(Sketcher.Constraint("Horizontal", 6, 3, 7, 3))
sketch10.addConstraint(Sketcher.Constraint("Horizontal", 7, 3, 8, 3))
sketch10.addConstraint(Sketcher.Constraint("Horizontal", 8, 3, 9, 3))
sketch10.addConstraint(Sketcher.Constraint("Diameter", 4, 3.0))
sketch10.addConstraint(Sketcher.Constraint("DistanceX", 1, 2, 1, 1, 61.0))
sketch10.addConstraint(Sketcher.Constraint("DistanceY", 0, 2, 0, 1, 20.0))
sketch10.addConstraint(Sketcher.Constraint("DistanceY", -1, 1, 4, 3, 5.0))
sketch10.addConstraint(Sketcher.Constraint("DistanceX", -1, 1, 0, 2, 3.0))
sketch10.addConstraint(Sketcher.Constraint("DistanceY", 0, 2, -1, 1, 10.0))
sketch10.addConstraint(Sketcher.Constraint("DistanceX", 5, 3, 4, 3, 10.0))
sketch10.addConstraint(Sketcher.Constraint("DistanceX", 6, 3, 5, 3, 10.0))
sketch10.addConstraint(Sketcher.Constraint("DistanceX", 7, 3, 6, 3, 10.0))
sketch10.addConstraint(Sketcher.Constraint("DistanceX", 8, 3, 7, 3, 10.0))
sketch10.addConstraint(Sketcher.Constraint("DistanceX", 9, 3, 8, 3, 10.0))
sketch10.addConstraint(Sketcher.Constraint("DistanceX", 4, 3, -1, 1, 2.5))
pad8 = doc.addObject("PartDesign::Pad", "Pad007")
body.addObject(pad8)
pad8.Profile = sketch10
pad8.Length = 3

# Sketch on XZ plane
sketch11 = doc.addObject("Sketcher::SketchObject", "Sketch010")
body.addObject(sketch11)
sketch11.AttachmentSupport = (doc.XZ_Plane, [""])
sketch11.MapMode = "FlatFace"
sketch11.AttachmentOffset = App.Placement(V(0, 0, -10), App.Rotation())
sketch11.addGeometry(Part.LineSegment(V(-38, 0, 0), V(-38, 12, 0)), False)
sketch11.addGeometry(Part.LineSegment(V(-38, 12, 0), V(-32, 12, 0)), False)
sketch11.addGeometry(Part.LineSegment(V(-32, 12, 0), V(-32, 0, 0)), False)
sketch11.addGeometry(Part.LineSegment(V(-32, 0, 0), V(-38, 0, 0)), False)
sketch11.addGeometry(Part.LineSegment(V(-50, 3, 0), V(-50, 12, 0)), False)
sketch11.addGeometry(Part.LineSegment(V(-50, 12, 0), V(-45, 12, 0)), False)
sketch11.addGeometry(Part.LineSegment(V(-45, 12, 0), V(-45, 3, 0)), False)
sketch11.addGeometry(Part.LineSegment(V(-45, 3, 0), V(-50, 3, 0)), False)
sketch11.addGeometry(Part.LineSegment(V(-22, 0, 0), V(-22, 12, 0)), False)
sketch11.addGeometry(Part.LineSegment(V(-22, 12, 0), V(-18, 12, 0)), False)
sketch11.addGeometry(Part.LineSegment(V(-18, 12, 0), V(-18, 0, 0)), False)
sketch11.addGeometry(Part.LineSegment(V(-18, 0, 0), V(-22, 0, 0)), False)
sketch11.addGeometry(Part.LineSegment(V(-10, 3, 0), V(-10, 12, 0)), False)
sketch11.addGeometry(Part.LineSegment(V(-10, 12, 0), V(-5, 12, 0)), False)
sketch11.addGeometry(Part.LineSegment(V(-5, 12, 0), V(-5, 3, 0)), False)
sketch11.addGeometry(Part.LineSegment(V(-5, 3, 0), V(-10, 3, 0)), False)
sketch11.addConstraint(Sketcher.Constraint("Coincident", 0, 2, 1, 1))
sketch11.addConstraint(Sketcher.Constraint("Coincident", 1, 2, 2, 1))
sketch11.addConstraint(Sketcher.Constraint("Coincident", 2, 2, 3, 1))
sketch11.addConstraint(Sketcher.Constraint("Coincident", 3, 2, 0, 1))
sketch11.addConstraint(Sketcher.Constraint("Coincident", 4, 2, 5, 1))
sketch11.addConstraint(Sketcher.Constraint("Coincident", 5, 2, 6, 1))
sketch11.addConstraint(Sketcher.Constraint("Coincident", 6, 2, 7, 1))
sketch11.addConstraint(Sketcher.Constraint("Coincident", 7, 2, 4, 1))
sketch11.addConstraint(Sketcher.Constraint("Coincident", 8, 2, 9, 1))
sketch11.addConstraint(Sketcher.Constraint("Coincident", 9, 2, 10, 1))
sketch11.addConstraint(Sketcher.Constraint("Coincident", 10, 2, 11, 1))
sketch11.addConstraint(Sketcher.Constraint("Coincident", 11, 2, 8, 1))
sketch11.addConstraint(Sketcher.Constraint("Coincident", 12, 2, 13, 1))
sketch11.addConstraint(Sketcher.Constraint("Coincident", 13, 2, 14, 1))
sketch11.addConstraint(Sketcher.Constraint("Coincident", 14, 2, 15, 1))
sketch11.addConstraint(Sketcher.Constraint("Coincident", 15, 2, 12, 1))
sketch11.addConstraint(Sketcher.Constraint("Vertical", 0))
sketch11.addConstraint(Sketcher.Constraint("Horizontal", 1))
sketch11.addConstraint(Sketcher.Constraint("Vertical", 2))
sketch11.addConstraint(Sketcher.Constraint("Horizontal", 3))
sketch11.addConstraint(Sketcher.Constraint("Vertical", 4))
sketch11.addConstraint(Sketcher.Constraint("Horizontal", 5))
sketch11.addConstraint(Sketcher.Constraint("Vertical", 6))
sketch11.addConstraint(Sketcher.Constraint("Horizontal", 7))
sketch11.addConstraint(Sketcher.Constraint("Vertical", 8))
sketch11.addConstraint(Sketcher.Constraint("Horizontal", 9))
sketch11.addConstraint(Sketcher.Constraint("Vertical", 10))
sketch11.addConstraint(Sketcher.Constraint("Horizontal", 11))
sketch11.addConstraint(Sketcher.Constraint("Vertical", 12))
sketch11.addConstraint(Sketcher.Constraint("Horizontal", 13))
sketch11.addConstraint(Sketcher.Constraint("Vertical", 14))
sketch11.addConstraint(Sketcher.Constraint("Horizontal", 15))
sketch11.addConstraint(Sketcher.Constraint("PointOnObject", 2, 2, -1))
sketch11.addConstraint(Sketcher.Constraint("PointOnObject", 10, 2, -1))
sketch11.addConstraint(Sketcher.Constraint("Horizontal", 1, 2, 4, 2))
sketch11.addConstraint(Sketcher.Constraint("Horizontal", 5, 2, 8, 2))
sketch11.addConstraint(Sketcher.Constraint("Horizontal", 9, 2, 12, 2))
sketch11.addConstraint(Sketcher.Constraint("Horizontal", 7, 2, 14, 2))
sketch11.addConstraint(Sketcher.Constraint("Equal", 3, 5))
sketch11.addConstraint(Sketcher.Constraint("Equal", 7, 9))
sketch11.addConstraint(Sketcher.Constraint("Equal", 11, 13))
sketch11.addConstraint(Sketcher.Constraint("DistanceX", 1, 1, 1, 2, 5.0))
sketch11.addConstraint(Sketcher.Constraint("DistanceY", 0, 1, 0, 2, 12.0))
sketch11.addConstraint(Sketcher.Constraint("DistanceY", 4, 1, 4, 2, 9.0))
sketch11.addConstraint(Sketcher.Constraint("DistanceX", 4, 2, -1, 1, 50.0))
sketch11.addConstraint(Sketcher.Constraint("DistanceX", 12, 2, -1, 1, 10.0))
sketch11.addConstraint(Sketcher.Constraint("DistanceX", 1, 2, 8, 2, 10.0))
sketch11.addConstraint(Sketcher.Constraint("DistanceX", 0, 2, -1, 1, 37.5))
pocket3 = doc.addObject("PartDesign::Pocket", "Pocket002")
body.addObject(pocket3)
pocket3.Profile = sketch11
pocket3.Length = 10
pocket3.Reversed = True

# Sketch on YZ plane
sketch12 = doc.addObject("Sketcher::SketchObject", "Sketch011")
body.addObject(sketch12)
sketch12.AttachmentSupport = (doc.YZ_Plane, [""])
sketch12.MapMode = "FlatFace"
sketch12.AttachmentOffset = App.Placement(V(0, 0, -58), App.Rotation())
sketch12.addGeometry(Part.LineSegment(V(-7, -11.2, 0), V(-7, -10.2, 0)), False)
sketch12.addGeometry(Part.ArcOfCircle(Part.Circle(V(-5, -10.2, 0), V(0, 0, 1), 2), math.radians(90), math.radians(180)), False)
sketch12.addGeometry(Part.LineSegment(V(-5, -8.2, 0), V(1, -8.2, 0)), False)
sketch12.addGeometry(Part.ArcOfCircle(Part.Circle(V(1, -10.2, 0), V(0, 0, 1), 2), math.radians(0), math.radians(90)), False)
sketch12.addGeometry(Part.LineSegment(V(3, -10.2, 0), V(3, -11.2, 0)), False)
sketch12.addGeometry(Part.ArcOfCircle(Part.Circle(V(1, -11.2, 0), V(0, 0, 1), 2), math.radians(-90), math.radians(0)), False)
sketch12.addGeometry(Part.LineSegment(V(1, -13.2, 0), V(-5, -13.2, 0)), False)
sketch12.addGeometry(Part.ArcOfCircle(Part.Circle(V(-5, -11.2, 0), V(0, 0, 1), 2), math.radians(-180), math.radians(-90)), False)
sketch12.addGeometry(Part.LineSegment(V(-5, -18.2, 0), V(1, -18.2, 0)), False)
sketch12.addGeometry(Part.ArcOfCircle(Part.Circle(V(1, -20.2, 0), V(0, 0, 1), 2), math.radians(0), math.radians(90)), False)
sketch12.addGeometry(Part.LineSegment(V(3, -20.2, 0), V(3, -21.2, 0)), False)
sketch12.addGeometry(Part.ArcOfCircle(Part.Circle(V(1, -21.2, 0), V(0, 0, 1), 2), math.radians(-90), math.radians(0)), False)
sketch12.addGeometry(Part.LineSegment(V(1, -23.2, 0), V(-5, -23.2, 0)), False)
sketch12.addGeometry(Part.ArcOfCircle(Part.Circle(V(-5, -21.2, 0), V(0, 0, 1), 2), math.radians(-180), math.radians(-90)), False)
sketch12.addGeometry(Part.LineSegment(V(-7, -21.2, 0), V(-7, -20.2, 0)), False)
sketch12.addGeometry(Part.ArcOfCircle(Part.Circle(V(-5, -20.2, 0), V(0, 0, 1), 2), math.radians(90), math.radians(180)), False)
sketch12.addGeometry(Part.LineSegment(V(-5, -28.2, 0), V(1, -28.2, 0)), False)
sketch12.addGeometry(Part.ArcOfCircle(Part.Circle(V(1, -30.2, 0), V(0, 0, 1), 2), math.radians(0), math.radians(90)), False)
sketch12.addGeometry(Part.LineSegment(V(3, -30.2, 0), V(3, -31.2, 0)), False)
sketch12.addGeometry(Part.ArcOfCircle(Part.Circle(V(1, -31.2, 0), V(0, 0, 1), 2), math.radians(-90), math.radians(0)), False)
sketch12.addGeometry(Part.LineSegment(V(1, -33.2, 0), V(-5, -33.2, 0)), False)
sketch12.addGeometry(Part.ArcOfCircle(Part.Circle(V(-5, -31.2, 0), V(0, 0, 1), 2), math.radians(-180), math.radians(-90)), False)
sketch12.addGeometry(Part.LineSegment(V(-7, -31.2, 0), V(-7, -30.2, 0)), False)
sketch12.addGeometry(Part.ArcOfCircle(Part.Circle(V(-5, -30.2, 0), V(0, 0, 1), 2), math.radians(90), math.radians(180)), False)
sketch12.addGeometry(Part.LineSegment(V(-5, -38.2, 0), V(1, -38.2, 0)), False)
sketch12.addGeometry(Part.ArcOfCircle(Part.Circle(V(1, -40.2, 0), V(0, 0, 1), 2), math.radians(0), math.radians(90)), False)
sketch12.addGeometry(Part.LineSegment(V(3, -40.2, 0), V(3, -41.2, 0)), False)
sketch12.addGeometry(Part.ArcOfCircle(Part.Circle(V(1, -41.2, 0), V(0, 0, 1), 2), math.radians(-90), math.radians(0)), False)
sketch12.addGeometry(Part.LineSegment(V(1, -43.2, 0), V(-5, -43.2, 0)), False)
sketch12.addGeometry(Part.ArcOfCircle(Part.Circle(V(-5, -41.2, 0), V(0, 0, 1), 2), math.radians(-180), math.radians(-90)), False)
sketch12.addGeometry(Part.LineSegment(V(-7, -41.2, 0), V(-7, -40.2, 0)), False)
sketch12.addGeometry(Part.ArcOfCircle(Part.Circle(V(-5, -40.2, 0), V(0, 0, 1), 2), math.radians(90), math.radians(180)), False)
sketch12.addConstraint(Sketcher.Constraint("Tangent", 0, 2, 1, 2))
sketch12.addConstraint(Sketcher.Constraint("Tangent", 1, 1, 2, 1))
sketch12.addConstraint(Sketcher.Constraint("Tangent", 2, 2, 3, 2))
sketch12.addConstraint(Sketcher.Constraint("Tangent", 3, 1, 4, 1))
sketch12.addConstraint(Sketcher.Constraint("Tangent", 4, 2, 5, 2))
sketch12.addConstraint(Sketcher.Constraint("Tangent", 5, 1, 6, 1))
sketch12.addConstraint(Sketcher.Constraint("Tangent", 6, 2, 7, 2))
sketch12.addConstraint(Sketcher.Constraint("Tangent", 7, 1, 0, 1))
sketch12.addConstraint(Sketcher.Constraint("Tangent", 8, 2, 9, 2))
sketch12.addConstraint(Sketcher.Constraint("Tangent", 9, 1, 10, 1))
sketch12.addConstraint(Sketcher.Constraint("Tangent", 10, 2, 11, 2))
sketch12.addConstraint(Sketcher.Constraint("Tangent", 11, 1, 12, 1))
sketch12.addConstraint(Sketcher.Constraint("Tangent", 12, 2, 13, 2))
sketch12.addConstraint(Sketcher.Constraint("Tangent", 13, 1, 14, 1))
sketch12.addConstraint(Sketcher.Constraint("Tangent", 14, 2, 15, 2))
sketch12.addConstraint(Sketcher.Constraint("Tangent", 15, 1, 8, 1))
sketch12.addConstraint(Sketcher.Constraint("Tangent", 16, 2, 17, 2))
sketch12.addConstraint(Sketcher.Constraint("Tangent", 17, 1, 18, 1))
sketch12.addConstraint(Sketcher.Constraint("Tangent", 18, 2, 19, 2))
sketch12.addConstraint(Sketcher.Constraint("Tangent", 19, 1, 20, 1))
sketch12.addConstraint(Sketcher.Constraint("Tangent", 20, 2, 21, 2))
sketch12.addConstraint(Sketcher.Constraint("Tangent", 21, 1, 22, 1))
sketch12.addConstraint(Sketcher.Constraint("Tangent", 22, 2, 23, 2))
sketch12.addConstraint(Sketcher.Constraint("Tangent", 23, 1, 16, 1))
sketch12.addConstraint(Sketcher.Constraint("Tangent", 24, 2, 25, 2))
sketch12.addConstraint(Sketcher.Constraint("Tangent", 25, 1, 26, 1))
sketch12.addConstraint(Sketcher.Constraint("Tangent", 26, 2, 27, 2))
sketch12.addConstraint(Sketcher.Constraint("Tangent", 27, 1, 28, 1))
sketch12.addConstraint(Sketcher.Constraint("Tangent", 28, 2, 29, 2))
sketch12.addConstraint(Sketcher.Constraint("Tangent", 29, 1, 30, 1))
sketch12.addConstraint(Sketcher.Constraint("Tangent", 30, 2, 31, 2))
sketch12.addConstraint(Sketcher.Constraint("Tangent", 31, 1, 24, 1))
sketch12.addConstraint(Sketcher.Constraint("Vertical", 0))
sketch12.addConstraint(Sketcher.Constraint("Horizontal", 2))
sketch12.addConstraint(Sketcher.Constraint("Vertical", 4))
sketch12.addConstraint(Sketcher.Constraint("Horizontal", 6))
sketch12.addConstraint(Sketcher.Constraint("Horizontal", 8))
sketch12.addConstraint(Sketcher.Constraint("Vertical", 10))
sketch12.addConstraint(Sketcher.Constraint("Horizontal", 12))
sketch12.addConstraint(Sketcher.Constraint("Vertical", 14))
sketch12.addConstraint(Sketcher.Constraint("Horizontal", 16))
sketch12.addConstraint(Sketcher.Constraint("Vertical", 18))
sketch12.addConstraint(Sketcher.Constraint("Horizontal", 20))
sketch12.addConstraint(Sketcher.Constraint("Vertical", 22))
sketch12.addConstraint(Sketcher.Constraint("Horizontal", 24))
sketch12.addConstraint(Sketcher.Constraint("Vertical", 26))
sketch12.addConstraint(Sketcher.Constraint("Horizontal", 28))
sketch12.addConstraint(Sketcher.Constraint("Vertical", 30))
sketch12.addConstraint(Sketcher.Constraint("Equal", 1, 3))
sketch12.addConstraint(Sketcher.Constraint("Equal", 3, 5))
sketch12.addConstraint(Sketcher.Constraint("Equal", 5, 7))
sketch12.addConstraint(Sketcher.Constraint("Equal", 7, 9))
sketch12.addConstraint(Sketcher.Constraint("Equal", 9, 11))
sketch12.addConstraint(Sketcher.Constraint("Equal", 11, 13))
sketch12.addConstraint(Sketcher.Constraint("Equal", 13, 15))
sketch12.addConstraint(Sketcher.Constraint("Equal", 15, 17))
sketch12.addConstraint(Sketcher.Constraint("Equal", 17, 19))
sketch12.addConstraint(Sketcher.Constraint("Equal", 19, 21))
sketch12.addConstraint(Sketcher.Constraint("Equal", 21, 23))
sketch12.addConstraint(Sketcher.Constraint("Equal", 23, 25))
sketch12.addConstraint(Sketcher.Constraint("Equal", 25, 27))
sketch12.addConstraint(Sketcher.Constraint("Equal", 27, 29))
sketch12.addConstraint(Sketcher.Constraint("Equal", 29, 31))
sketch12.addConstraint(Sketcher.Constraint("Vertical", 5, 3, 9, 3))
sketch12.addConstraint(Sketcher.Constraint("Vertical", 7, 3, 13, 3))
sketch12.addConstraint(Sketcher.Constraint("Vertical", 11, 3, 17, 3))
sketch12.addConstraint(Sketcher.Constraint("Vertical", 15, 3, 21, 3))
sketch12.addConstraint(Sketcher.Constraint("Vertical", 19, 3, 25, 3))
sketch12.addConstraint(Sketcher.Constraint("Vertical", 23, 3, 29, 3))
sketch12.addConstraint(Sketcher.Constraint("Equal", 4, 10))
sketch12.addConstraint(Sketcher.Constraint("Equal", 14, 18))
sketch12.addConstraint(Sketcher.Constraint("Equal", 22, 26))
sketch12.addConstraint(Sketcher.Constraint("Radius", 1, 2.0))
sketch12.addConstraint(Sketcher.Constraint("DistanceX", 2, 1, 2, 2, 6.0))
sketch12.addConstraint(Sketcher.Constraint("DistanceY", 0, 1, 0, 2, 1.0))
sketch12.addConstraint(Sketcher.Constraint("DistanceX", 1, 3, -1, 1, 5.0))
sketch12.addConstraint(Sketcher.Constraint("DistanceY", 9, 3, 5, 3, 9.0))
sketch12.addConstraint(Sketcher.Constraint("DistanceY", 17, 3, 11, 3, 9.0))
sketch12.addConstraint(Sketcher.Constraint("DistanceY", 25, 3, 19, 3, 9.0))
sketch12.addConstraint(Sketcher.Constraint("DistanceY", 1, 3, -1, 1, 10.17609))
pocket4 = doc.addObject("PartDesign::Pocket", "Pocket003")
body.addObject(pocket4)
pocket4.Profile = sketch12
pocket4.Type = "ThroughAll"
pocket4.Reversed = True

doc.recompute()
